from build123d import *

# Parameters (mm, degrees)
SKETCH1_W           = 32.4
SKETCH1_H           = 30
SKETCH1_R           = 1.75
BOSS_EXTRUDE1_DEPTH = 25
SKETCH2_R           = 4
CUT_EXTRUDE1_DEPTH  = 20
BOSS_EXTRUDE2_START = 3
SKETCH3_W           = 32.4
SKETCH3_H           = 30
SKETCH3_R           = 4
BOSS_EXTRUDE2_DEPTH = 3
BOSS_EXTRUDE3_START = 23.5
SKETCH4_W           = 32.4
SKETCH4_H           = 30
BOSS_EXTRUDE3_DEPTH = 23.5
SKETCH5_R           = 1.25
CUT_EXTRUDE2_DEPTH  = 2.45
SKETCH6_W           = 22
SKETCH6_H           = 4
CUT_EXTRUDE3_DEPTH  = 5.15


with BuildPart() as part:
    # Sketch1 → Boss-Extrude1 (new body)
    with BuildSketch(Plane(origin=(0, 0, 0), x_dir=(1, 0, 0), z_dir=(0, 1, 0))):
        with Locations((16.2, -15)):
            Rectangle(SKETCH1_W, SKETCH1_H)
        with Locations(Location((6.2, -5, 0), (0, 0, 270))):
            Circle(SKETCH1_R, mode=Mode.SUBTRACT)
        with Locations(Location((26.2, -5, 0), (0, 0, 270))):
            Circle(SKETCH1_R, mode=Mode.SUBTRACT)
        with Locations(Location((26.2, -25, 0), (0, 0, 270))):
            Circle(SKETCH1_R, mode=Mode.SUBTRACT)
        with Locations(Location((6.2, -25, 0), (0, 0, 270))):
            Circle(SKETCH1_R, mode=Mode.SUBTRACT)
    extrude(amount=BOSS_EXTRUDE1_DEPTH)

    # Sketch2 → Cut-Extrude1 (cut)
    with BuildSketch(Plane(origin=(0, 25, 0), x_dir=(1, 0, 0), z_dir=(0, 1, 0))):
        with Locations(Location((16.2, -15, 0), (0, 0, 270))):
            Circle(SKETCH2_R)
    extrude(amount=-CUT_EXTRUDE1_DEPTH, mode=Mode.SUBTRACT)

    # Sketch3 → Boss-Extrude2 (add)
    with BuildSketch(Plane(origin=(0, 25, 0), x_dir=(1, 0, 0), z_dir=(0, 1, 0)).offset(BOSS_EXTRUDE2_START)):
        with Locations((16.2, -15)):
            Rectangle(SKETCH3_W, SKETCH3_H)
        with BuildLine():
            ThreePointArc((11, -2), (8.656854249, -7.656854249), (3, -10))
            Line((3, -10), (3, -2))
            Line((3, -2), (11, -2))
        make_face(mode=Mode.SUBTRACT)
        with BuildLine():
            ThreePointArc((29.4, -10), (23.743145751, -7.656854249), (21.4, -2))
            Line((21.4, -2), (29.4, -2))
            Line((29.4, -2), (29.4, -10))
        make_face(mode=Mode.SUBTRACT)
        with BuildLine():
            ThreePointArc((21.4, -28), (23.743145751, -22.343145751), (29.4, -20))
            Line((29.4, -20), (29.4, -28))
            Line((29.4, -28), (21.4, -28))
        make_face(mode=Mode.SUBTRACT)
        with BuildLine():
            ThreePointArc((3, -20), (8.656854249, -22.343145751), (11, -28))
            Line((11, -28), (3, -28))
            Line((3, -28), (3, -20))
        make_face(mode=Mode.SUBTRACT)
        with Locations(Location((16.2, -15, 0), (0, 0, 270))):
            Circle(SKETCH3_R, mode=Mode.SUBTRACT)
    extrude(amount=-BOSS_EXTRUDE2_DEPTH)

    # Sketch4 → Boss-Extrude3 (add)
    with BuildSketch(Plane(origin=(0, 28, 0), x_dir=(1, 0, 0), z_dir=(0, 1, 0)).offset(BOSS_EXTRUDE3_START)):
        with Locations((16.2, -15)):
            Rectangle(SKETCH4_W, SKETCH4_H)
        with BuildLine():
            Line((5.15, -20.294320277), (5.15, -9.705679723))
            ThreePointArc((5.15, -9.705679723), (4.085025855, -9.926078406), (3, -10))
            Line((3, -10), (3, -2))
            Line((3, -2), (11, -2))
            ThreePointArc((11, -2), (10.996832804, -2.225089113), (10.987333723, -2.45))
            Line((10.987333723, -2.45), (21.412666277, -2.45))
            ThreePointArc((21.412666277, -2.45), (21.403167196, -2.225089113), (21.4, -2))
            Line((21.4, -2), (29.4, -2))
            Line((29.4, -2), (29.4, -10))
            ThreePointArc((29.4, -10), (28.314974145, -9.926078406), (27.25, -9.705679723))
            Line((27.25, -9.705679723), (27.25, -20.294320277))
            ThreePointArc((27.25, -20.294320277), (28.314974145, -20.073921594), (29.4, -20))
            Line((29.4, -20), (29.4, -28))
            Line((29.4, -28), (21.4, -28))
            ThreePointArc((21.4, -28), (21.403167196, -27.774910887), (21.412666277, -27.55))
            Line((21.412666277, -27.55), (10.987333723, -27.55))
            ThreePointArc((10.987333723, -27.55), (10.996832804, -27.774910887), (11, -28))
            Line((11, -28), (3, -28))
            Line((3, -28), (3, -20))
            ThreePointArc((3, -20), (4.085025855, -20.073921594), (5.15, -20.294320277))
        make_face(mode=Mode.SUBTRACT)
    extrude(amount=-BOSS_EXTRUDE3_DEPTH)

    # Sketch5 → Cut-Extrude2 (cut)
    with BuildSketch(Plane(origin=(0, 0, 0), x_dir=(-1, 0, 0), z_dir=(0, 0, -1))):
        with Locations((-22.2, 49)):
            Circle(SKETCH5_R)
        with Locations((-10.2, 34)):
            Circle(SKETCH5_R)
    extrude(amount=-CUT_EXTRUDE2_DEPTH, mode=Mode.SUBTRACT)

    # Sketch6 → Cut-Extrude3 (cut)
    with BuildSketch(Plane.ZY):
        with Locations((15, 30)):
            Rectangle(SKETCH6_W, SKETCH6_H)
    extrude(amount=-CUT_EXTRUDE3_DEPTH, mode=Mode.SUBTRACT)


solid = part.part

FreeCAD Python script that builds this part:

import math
import FreeCAD as App
import Part
import Sketcher

V = App.Vector
Q = App.Units.Quantity

doc = App.newDocument("Part")
params = doc.addObject("Spreadsheet::Sheet", "Params")
for row, (alias, value) in enumerate([
    ("sketch1_diameter", "3.5 mm"),
    ("sketch1_height", "30 mm"),
    ("sketch1_width", "32.4 mm"),
    ("pad1_length", "25 mm"),
    ("sketch2_diameter", "8 mm"),
    ("pocket1_length", "20 mm"),
    ("sketch3_diameter", "8 mm"),
    ("sketch3_radius", "8 mm"),
    ("sketch3_height", "30 mm"),
    ("sketch3_width", "32.4 mm"),
    ("pad2_length", "3 mm"),
    ("sketch4_radius", "8 mm"),
    ("sketch4_height", "30 mm"),
    ("sketch4_width", "32.4 mm"),
    ("pad3_length", "23.5 mm"),
    ("sketch5_diameter", "2.5 mm"),
    ("pocket2_length", "2.45 mm"),
    ("sketch6_width", "4 mm"),
    ("sketch6_height", "22 mm"),
    ("pocket3_length", "5.15 mm"),
], start=1):
    params.set(f"A{row}", alias)
    params.set(f"B{row}", "=" + value)
    params.setAlias(f"B{row}", alias)

body = doc.addObject("PartDesign::Body", "Body")

# Sketch on XZ plane
sketch1 = body.newObject("Sketcher::SketchObject", "Sketch")
sketch1.AttachmentSupport = (doc.getObject("XZ_Plane"), [""])
sketch1.MapMode = "FlatFace"
sketch1.addGeometry(Part.LineSegment(V(0, 0, 0), V(0, 30, 0)), False)
sketch1.addGeometry(Part.LineSegment(V(0, 30, 0), V(32.4, 30, 0)), False)
sketch1.addGeometry(Part.LineSegment(V(32.4, 30, 0), V(32.4, 0, 0)), False)
sketch1.addGeometry(Part.LineSegment(V(32.4, 0, 0), V(0, 0, 0)), False)
sketch1.addGeometry(Part.Circle(V(6.2, 25, 0), V(0, 0, 1), 1.8), False)
sketch1.addGeometry(Part.Circle(V(26.2, 25, 0), V(0, 0, 1), 1.8), False)
sketch1.addGeometry(Part.Circle(V(6.2, 5, 0), V(0, 0, 1), 1.8), False)
sketch1.addGeometry(Part.Circle(V(26.2, 5, 0), V(0, 0, 1), 1.8), False)
sketch1.addConstraint(Sketcher.Constraint("Coincident", 0, 2, 1, 1))
sketch1.addConstraint(Sketcher.Constraint("Coincident", 1, 2, 2, 1))
sketch1.addConstraint(Sketcher.Constraint("Coincident", 2, 2, 3, 1))
sketch1.addConstraint(Sketcher.Constraint("Coincident", 3, 2, 0, 1))
sketch1.addConstraint(Sketcher.Constraint("Vertical", 0))
sketch1.addConstraint(Sketcher.Constraint("Horizontal", 1))
sketch1.addConstraint(Sketcher.Constraint("Vertical", 2))
sketch1.addConstraint(Sketcher.Constraint("Horizontal", 3))
sketch1.addConstraint(Sketcher.Constraint("Coincident", 3, 2, -1, 1))
sketch1.addConstraint(Sketcher.Constraint("Equal", 4, 5))
sketch1.addConstraint(Sketcher.Constraint("Equal", 5, 6))
sketch1.addConstraint(Sketcher.Constraint("Equal", 6, 7))
sketch1.addConstraint(Sketcher.Constraint("Horizontal", 4, 3, 5, 3))
sketch1.addConstraint(Sketcher.Constraint("Horizontal", 6, 3, 7, 3))
sketch1.addConstraint(Sketcher.Constraint("Vertical", 4, 3, 6, 3))
sketch1.addConstraint(Sketcher.Constraint("Vertical", 5, 3, 7, 3))
sketch1.addConstraint(Sketcher.Constraint("Diameter", 4, Q("3.5 mm")))
sketch1.addConstraint(Sketcher.Constraint("DistanceY", 0, 1, 0, 2, Q("30 mm")))
sketch1.addConstraint(Sketcher.Constraint("DistanceX", 1, 1, 1, 2, Q("32.4 mm")))
sketch1.addConstraint(Sketcher.Constraint("DistanceY", -1, 1, 4, 3, Q("25 mm")))
sketch1.addConstraint(Sketcher.Constraint("DistanceY", -1, 1, 6, 3, Q("5 mm")))
sketch1.addConstraint(Sketcher.Constraint("DistanceX", 4, 3, 5, 3, Q("20 mm")))
sketch1.addConstraint(Sketcher.Constraint("DistanceX", -1, 1, 4, 3, Q("6.2 mm")))
sketch1.setExpression("Constraints[16]", "Params.sketch1_diameter")
sketch1.setExpression("Constraints[17]", "Params.sketch1_height")
sketch1.setExpression("Constraints[18]", "Params.sketch1_width")
pad1 = body.newObject("PartDesign::Pad", "Pad")
pad1.Profile = sketch1
pad1.setExpression("Length", "Params.pad1_length")
pad1.Reversed = True

# Sketch on XZ plane
sketch2 = body.newObject("Sketcher::SketchObject", "Sketch001")
sketch2.AttachmentSupport = (doc.getObject("XZ_Plane"), [""])
sketch2.MapMode = "FlatFace"
sketch2.AttachmentOffset = App.Placement(V(0, 0, -25), App.Rotation())
sketch2.addGeometry(Part.Circle(V(16.2, 15, 0), V(0, 0, 1), 4), False)
sketch2.addConstraint(Sketcher.Constraint("Diameter", 0, Q("8 mm")))
sketch2.addConstraint(Sketcher.Constraint("DistanceY", -1, 1, 0, 3, Q("15 mm")))
sketch2.addConstraint(Sketcher.Constraint("DistanceX", -1, 1, 0, 3, Q("16.2 mm")))
sketch2.setExpression("Constraints[0]", "Params.sketch2_diameter")
pocket1 = body.newObject("PartDesign::Pocket", "Pocket")
pocket1.Profile = sketch2
pocket1.setExpression("Length", "Params.pocket1_length")
pocket1.Reversed = True

# Sketch on XZ plane
sketch3 = body.newObject("Sketcher::SketchObject", "Sketch002")
sketch3.AttachmentSupport = (doc.getObject("XZ_Plane"), [""])
sketch3.MapMode = "FlatFace"
sketch3.AttachmentOffset = App.Placement(V(0, 0, -28), App.Rotation())
sketch3.addGeometry(Part.LineSegment(V(0, 0, 0), V(0, 30, 0)), False)
sketch3.addGeometry(Part.LineSegment(V(0, 30, 0), V(32.4, 30, 0)), False)
sketch3.addGeometry(Part.LineSegment(V(32.4, 30, 0), V(32.4, 0, 0)), False)
sketch3.addGeometry(Part.LineSegment(V(32.4, 0, 0), V(0, 0, 0)), False)
sketch3.addGeometry(Part.LineSegment(V(3, 28, 0), V(3, 20, 0)), False)
sketch3.addGeometry(Part.ArcOfCircle(Part.Circle(V(3, 28, 0), V(0, 0, 1), 8), math.radians(-90), math.radians(0)), False)
sketch3.addGeometry(Part.LineSegment(V(11, 28, 0), V(3, 28, 0)), False)
sketch3.addGeometry(Part.LineSegment(V(29.4, 28, 0), V(21.4, 28, 0)), False)
sketch3.addGeometry(Part.ArcOfCircle(Part.Circle(V(29.4, 28, 0), V(0, 0, 1), 8), math.radians(-180), math.radians(-90)), False)
sketch3.addGeometry(Part.LineSegment(V(29.4, 20, 0), V(29.4, 28, 0)), False)
sketch3.addGeometry(Part.LineSegment(V(3, 2, 0), V(11, 2, 0)), False)
sketch3.addGeometry(Part.ArcOfCircle(Part.Circle(V(3, 2, 0), V(0, 0, 1), 8), math.radians(0), math.radians(90)), False)
sketch3.addGeometry(Part.LineSegment(V(3, 10, 0), V(3, 2, 0)), False)
sketch3.addGeometry(Part.Circle(V(16.2, 15, 0), V(0, 0, 1), 4), False)
sketch3.addGeometry(Part.LineSegment(V(29.4, 2, 0), V(29.4, 10, 0)), False)
sketch3.addGeometry(Part.ArcOfCircle(Part.Circle(V(29.4, 2, 0), V(0, 0, 1), 8), math.radians(90), math.radians(180)), False)
sketch3.addGeometry(Part.LineSegment(V(21.4, 2, 0), V(29.4, 2, 0)), False)
sketch3.addConstraint(Sketcher.Constraint("Coincident", 0, 2, 1, 1))
sketch3.addConstraint(Sketcher.Constraint("Coincident", 1, 2, 2, 1))
sketch3.addConstraint(Sketcher.Constraint("Coincident", 2, 2, 3, 1))
sketch3.addConstraint(Sketcher.Constraint("Coincident", 3, 2, 0, 1))
sketch3.addConstraint(Sketcher.Constraint("Coincident", 4, 2, 5, 1))
sketch3.addConstraint(Sketcher.Constraint("Coincident", 5, 2, 6, 1))
sketch3.addConstraint(Sketcher.Constraint("Coincident", 6, 2, 4, 1))
sketch3.addConstraint(Sketcher.Constraint("Coincident", 7, 2, 8, 1))
sketch3.addConstraint(Sketcher.Constraint("Coincident", 8, 2, 9, 1))
sketch3.addConstraint(Sketcher.Constraint("Coincident", 9, 2, 7, 1))
sketch3.addConstraint(Sketcher.Constraint("Coincident", 10, 2, 11, 1))
sketch3.addConstraint(Sketcher.Constraint("Coincident", 11, 2, 12, 1))
sketch3.addConstraint(Sketcher.Constraint("Coincident", 12, 2, 10, 1))
sketch3.addConstraint(Sketcher.Constraint("Coincident", 14, 2, 15, 1))
sketch3.addConstraint(Sketcher.Constraint("Coincident", 15, 2, 16, 1))
sketch3.addConstraint(Sketcher.Constraint("Coincident", 16, 2, 14, 1))
sketch3.addConstraint(Sketcher.Constraint("Vertical", 0))
sketch3.addConstraint(Sketcher.Constraint("Horizontal", 1))
sketch3.addConstraint(Sketcher.Constraint("Vertical", 2))
sketch3.addConstraint(Sketcher.Constraint("Horizontal", 3))
sketch3.addConstraint(Sketcher.Constraint("Vertical", 4))
sketch3.addConstraint(Sketcher.Constraint("Horizontal", 6))
sketch3.addConstraint(Sketcher.Constraint("Horizontal", 7))
sketch3.addConstraint(Sketcher.Constraint("Vertical", 9))
sketch3.addConstraint(Sketcher.Constraint("Horizontal", 10))
sketch3.addConstraint(Sketcher.Constraint("Vertical", 12))
sketch3.addConstraint(Sketcher.Constraint("Vertical", 14))
sketch3.addConstraint(Sketcher.Constraint("Horizontal", 16))
sketch3.addConstraint(Sketcher.Constraint("Coincident", 3, 2, -1, 1))
sketch3.addConstraint(Sketcher.Constraint("Coincident", 6, 2, 5, 3))
sketch3.addConstraint(Sketcher.Constraint("Coincident", 9, 2, 8, 3))
sketch3.addConstraint(Sketcher.Constraint("Coincident", 12, 2, 11, 3))
sketch3.addConstraint(Sketcher.Constraint("Coincident", 16, 2, 15, 3))
sketch3.addConstraint(Sketcher.Constraint("Equal", 5, 8))
sketch3.addConstraint(Sketcher.Constraint("Equal", 8, 11))
sketch3.addConstraint(Sketcher.Constraint("Equal", 11, 15))
sketch3.addConstraint(Sketcher.Constraint("Horizontal", 5, 3, 8, 3))
sketch3.addConstraint(Sketcher.Constraint("Horizontal", 11, 3, 15, 3))
sketch3.addConstraint(Sketcher.Constraint("Vertical", 5, 3, 11, 3))
sketch3.addConstraint(Sketcher.Constraint("Vertical", 8, 3, 15, 3))
sketch3.addConstraint(Sketcher.Constraint("Diameter", 13, Q("8 mm")))
sketch3.addConstraint(Sketcher.Constraint("Radius", 5, Q("8 mm")))
sketch3.addConstraint(Sketcher.Constraint("DistanceY", 0, 1, 0, 2, Q("30 mm")))
sketch3.addConstraint(Sketcher.Constraint("DistanceX", 1, 1, 1, 2, Q("32.4 mm")))
sketch3.addConstraint(Sketcher.Constraint("DistanceX", -1, 1, 5, 3, Q("3 mm")))
sketch3.addConstraint(Sketcher.Constraint("DistanceY", -1, 1, 5, 3, Q("28 mm")))
sketch3.addConstraint(Sketcher.Constraint("DistanceY", -1, 1, 11, 3, Q("2 mm")))
sketch3.addConstraint(Sketcher.Constraint("DistanceY", -1, 1, 13, 3, Q("15 mm")))
sketch3.addConstraint(Sketcher.Constraint("DistanceX", 8, 3, 1, 2, Q("3 mm")))
sketch3.addConstraint(Sketcher.Constraint("DistanceX", -1, 1, 13, 3, Q("16.2 mm")))
sketch3.setExpression("Constraints[40]", "Params.sketch3_diameter")
sketch3.setExpression("Constraints[41]", "Params.sketch3_radius")
sketch3.setExpression("Constraints[42]", "Params.sketch3_height")
sketch3.setExpression("Constraints[43]", "Params.sketch3_width")
pad2 = body.newObject("PartDesign::Pad", "Pad001")
pad2.Profile = sketch3
pad2.setExpression("Length", "Params.pad2_length")

# Sketch on XZ plane
sketch4 = body.newObject("Sketcher::SketchObject", "Sketch003")
sketch4.AttachmentSupport = (doc.getObject("XZ_Plane"), [""])
sketch4.MapMode = "FlatFace"
sketch4.AttachmentOffset = App.Placement(V(0, 0, -51.5), App.Rotation())
sketch4.addGeometry(Part.LineSegment(V(0, 0, 0), V(0, 30, 0)), False)
sketch4.addGeometry(Part.LineSegment(V(0, 30, 0), V(32.4, 30, 0)), False)
sketch4.addGeometry(Part.LineSegment(V(32.4, 30, 0), V(32.4, 0, 0)), False)
sketch4.addGeometry(Part.LineSegment(V(32.4, 0, 0), V(0, 0, 0)), False)
sketch4.addGeometry(Part.ArcOfCircle(Part.Circle(V(3, 28, 0), V(0, 0, 1), 8), math.radians(-90), math.radians(-74.41)), False)
sketch4.addGeometry(Part.LineSegment(V(5.15, 20.29, 0), V(5.15, 9.71, 0)), False)
sketch4.addGeometry(Part.ArcOfCircle(Part.Circle(V(3, 2, 0), V(0, 0, 1), 8), math.radians(74.41), math.radians(90)), False)
sketch4.addGeometry(Part.LineSegment(V(3, 10, 0), V(3, 2, 0)), False)
sketch4.addGeometry(Part.LineSegment(V(3, 2, 0), V(11, 2, 0)), False)
sketch4.addGeometry(Part.ArcOfCircle(Part.Circle(V(3, 2, 0), V(0, 0, 1), 8), math.radians(0), math.radians(3.22)), False)
sketch4.addGeometry(Part.LineSegment(V(10.99, 2.45, 0), V(21.41, 2.45, 0)), False)
sketch4.addGeometry(Part.ArcOfCircle(Part.Circle(V(29.4, 2, 0), V(0, 0, 1), 8), math.radians(176.78), math.radians(180)), False)
sketch4.addGeometry(Part.LineSegment(V(21.4, 2, 0), V(29.4, 2, 0)), False)
sketch4.addGeometry(Part.LineSegment(V(29.4, 2, 0), V(29.4, 10, 0)), False)
sketch4.addGeometry(Part.ArcOfCircle(Part.Circle(V(29.4, 2, 0), V(0, 0, 1), 8), math.radians(90), math.radians(105.59)), False)
sketch4.addGeometry(Part.LineSegment(V(27.25, 9.71, 0), V(27.25, 20.29, 0)), False)
sketch4.addGeometry(Part.ArcOfCircle(Part.Circle(V(29.4, 28, 0), V(0, 0, 1), 8), math.radians(-105.59), math.radians(-90)), False)
sketch4.addGeometry(Part.LineSegment(V(29.4, 20, 0), V(29.4, 28, 0)), False)
sketch4.addGeometry(Part.LineSegment(V(29.4, 28, 0), V(21.4, 28, 0)), False)
sketch4.addGeometry(Part.ArcOfCircle(Part.Circle(V(29.4, 28, 0), V(0, 0, 1), 8), math.radians(180), math.radians(183.22)), False)
sketch4.addGeometry(Part.LineSegment(V(21.41, 27.55, 0), V(10.99, 27.55, 0)), False)
sketch4.addGeometry(Part.ArcOfCircle(Part.Circle(V(3, 28, 0), V(0, 0, 1), 8), math.radians(-3.22), math.radians(0)), False)
sketch4.addGeometry(Part.LineSegment(V(11, 28, 0), V(3, 28, 0)), False)
sketch4.addGeometry(Part.LineSegment(V(3, 28, 0), V(3, 20, 0)), False)
sketch4.addConstraint(Sketcher.Constraint("Coincident", 0, 2, 1, 1))
sketch4.addConstraint(Sketcher.Constraint("Coincident", 1, 2, 2, 1))
sketch4.addConstraint(Sketcher.Constraint("Coincident", 2, 2, 3, 1))
sketch4.addConstraint(Sketcher.Constraint("Coincident", 3, 2, 0, 1))
sketch4.addConstraint(Sketcher.Constraint("Coincident", 4, 2, 5, 1))
sketch4.addConstraint(Sketcher.Constraint("Coincident", 5, 2, 6, 1))
sketch4.addConstraint(Sketcher.Constraint("Coincident", 6, 2, 7, 1))
sketch4.addConstraint(Sketcher.Constraint("Coincident", 7, 2, 8, 1))
sketch4.addConstraint(Sketcher.Constraint("Coincident", 8, 2, 9, 1))
sketch4.addConstraint(Sketcher.Constraint("Coincident", 9, 2, 10, 1))
sketch4.addConstraint(Sketcher.Constraint("Coincident", 10, 2, 11, 1))
sketch4.addConstraint(Sketcher.Constraint("Coincident", 11, 2, 12, 1))
sketch4.addConstraint(Sketcher.Constraint("Coincident", 12, 2, 13, 1))
sketch4.addConstraint(Sketcher.Constraint("Coincident", 13, 2, 14, 1))
sketch4.addConstraint(Sketcher.Constraint("Coincident", 14, 2, 15, 1))
sketch4.addConstraint(Sketcher.Constraint("Coincident", 15, 2, 16, 1))
sketch4.addConstraint(Sketcher.Constraint("Coincident", 16, 2, 17, 1))
sketch4.addConstraint(Sketcher.Constraint("Coincident", 17, 2, 18, 1))
sketch4.addConstraint(Sketcher.Constraint("Coincident", 18, 2, 19, 1))
sketch4.addConstraint(Sketcher.Constraint("Coincident", 19, 2, 20, 1))
sketch4.addConstraint(Sketcher.Constraint("Coincident", 20, 2, 21, 1))
sketch4.addConstraint(Sketcher.Constraint("Coincident", 21, 2, 22, 1))
sketch4.addConstraint(Sketcher.Constraint("Coincident", 22, 2, 23, 1))
sketch4.addConstraint(Sketcher.Constraint("Coincident", 23, 2, 4, 1))
sketch4.addConstraint(Sketcher.Constraint("Vertical", 0))
sketch4.addConstraint(Sketcher.Constraint("Horizontal", 1))
sketch4.addConstraint(Sketcher.Constraint("Vertical", 2))
sketch4.addConstraint(Sketcher.Constraint("Horizontal", 3))
sketch4.addConstraint(Sketcher.Constraint("Vertical", 5))
sketch4.addConstraint(Sketcher.Constraint("Vertical", 7))
sketch4.addConstraint(Sketcher.Constraint("Horizontal", 8))
sketch4.addConstraint(Sketcher.Constraint("Horizontal", 10))
sketch4.addConstraint(Sketcher.Constraint("Horizontal", 12))
sketch4.addConstraint(Sketcher.Constraint("Vertical", 13))
sketch4.addConstraint(Sketcher.Constraint("Vertical", 15))
sketch4.addConstraint(Sketcher.Constraint("Vertical", 17))
sketch4.addConstraint(Sketcher.Constraint("Horizontal", 18))
sketch4.addConstraint(Sketcher.Constraint("Horizontal", 20))
sketch4.addConstraint(Sketcher.Constraint("Horizontal", 22))
sketch4.addConstraint(Sketcher.Constraint("Vertical", 23))
sketch4.addConstraint(Sketcher.Constraint("Coincident", 3, 2, -1, 1))
sketch4.addConstraint(Sketcher.Constraint("Coincident", 9, 3, 6, 3))
sketch4.addConstraint(Sketcher.Constraint("Coincident", 14, 3, 11, 3))
sketch4.addConstraint(Sketcher.Constraint("Coincident", 19, 3, 16, 3))
sketch4.addConstraint(Sketcher.Constraint("Coincident", 21, 3, 4, 3))
sketch4.addConstraint(Sketcher.Constraint("Coincident", 7, 2, 6, 3))
sketch4.addConstraint(Sketcher.Constraint("Coincident", 12, 2, 11, 3))
sketch4.addConstraint(Sketcher.Constraint("Coincident", 17, 2, 16, 3))
sketch4.addConstraint(Sketcher.Constraint("Coincident", 22, 2, 4, 3))
sketch4.addConstraint(Sketcher.Constraint("Equal", 4, 6))
sketch4.addConstraint(Sketcher.Constraint("Equal", 6, 9))
sketch4.addConstraint(Sketcher.Constraint("Equal", 9, 11))
sketch4.addConstraint(Sketcher.Constraint("Equal", 11, 14))
sketch4.addConstraint(Sketcher.Constraint("Equal", 14, 16))
sketch4.addConstraint(Sketcher.Constraint("Equal", 16, 19))
sketch4.addConstraint(Sketcher.Constraint("Equal", 19, 21))
sketch4.addConstraint(Sketcher.Constraint("Horizontal", 9, 3, 11, 3))
sketch4.addConstraint(Sketcher.Constraint("Horizontal", 4, 3, 16, 3))
sketch4.addConstraint(Sketcher.Constraint("Horizontal", 5, 2, 14, 2))
sketch4.addConstraint(Sketcher.Constraint("Horizontal", 4, 2, 15, 2))
sketch4.addConstraint(Sketcher.Constraint("Vertical", 4, 3, 6, 3))
sketch4.addConstraint(Sketcher.Constraint("Vertical", 10, 2, 19, 2))
sketch4.addConstraint(Sketcher.Constraint("Radius", 4, Q("8 mm")))
sketch4.addConstraint(Sketcher.Constraint("DistanceY", 0, 1, 0, 2, Q("30 mm")))
sketch4.addConstraint(Sketcher.Constraint("DistanceX", 1, 1, 1, 2, Q("32.4 mm")))
sketch4.addConstraint(Sketcher.Constraint("DistanceX", -1, 1, 4, 3, Q("3 mm")))
sketch4.addConstraint(Sketcher.Constraint("DistanceY", -1, 1, 4, 3, Q("28 mm")))
sketch4.addConstraint(Sketcher.Constraint("DistanceY", -1, 1, 6, 3, Q("2 mm")))
sketch4.addConstraint(Sketcher.Constraint("DistanceX", 16, 3, 1, 2, Q("3 mm")))
sketch4.addConstraint(Sketcher.Constraint("DistanceX", -1, 1, 4, 2, Q("5.15 mm")))
sketch4.addConstraint(Sketcher.Constraint("DistanceY", -1, 1, 9, 2, Q("2.45 mm")))
sketch4.setExpression("Constraints[62]", "Params.sketch4_radius")
sketch4.setExpression("Constraints[63]", "Params.sketch4_height")
sketch4.setExpression("Constraints[64]", "Params.sketch4_width")
pad3 = body.newObject("PartDesign::Pad", "Pad002")
pad3.Profile = sketch4
pad3.setExpression("Length", "Params.pad3_length")

# Sketch on XY plane
sketch5 = body.newObject("Sketcher::SketchObject", "Sketch004")
sketch5.AttachmentSupport = (doc.getObject("XY_Plane"), [""])
sketch5.MapMode = "FlatFace"
sketch5.addGeometry(Part.Circle(V(22.2, 49, 0), V(0, 0, 1), 1.2), False)
sketch5.addGeometry(Part.Circle(V(10.2, 34, 0), V(0, 0, 1), 1.2), False)
sketch5.addConstraint(Sketcher.Constraint("Equal", 0, 1))
sketch5.addConstraint(Sketcher.Constraint("Diameter", 0, Q("2.5 mm")))
sketch5.addConstraint(Sketcher.Constraint("DistanceY", -1, 1, 0, 3, Q("49 mm")))
sketch5.addConstraint(Sketcher.Constraint("DistanceY", -1, 1, 1, 3, Q("34 mm")))
sketch5.addConstraint(Sketcher.Constraint("DistanceX", 1, 3, 0, 3, Q("12 mm")))
sketch5.addConstraint(Sketcher.Constraint("DistanceX", -1, 1, 0, 3, Q("22.2 mm")))
sketch5.setExpression("Constraints[1]", "Params.sketch5_diameter")
pocket2 = body.newObject("PartDesign::Pocket", "Pocket001")
pocket2.Profile = sketch5
pocket2.setExpression("Length", "Params.pocket2_length")
pocket2.Reversed = True

# Sketch on YZ plane
sketch6 = body.newObject("Sketcher::SketchObject", "Sketch005")
sketch6.AttachmentSupport = (doc.getObject("YZ_Plane"), [""])
sketch6.MapMode = "FlatFace"
sketch6.addGeometry(Part.LineSegment(V(32, 4, 0), V(28, 4, 0)), False)
sketch6.addGeometry(Part.LineSegment(V(28, 4, 0), V(28, 26, 0)), False)
sketch6.addGeometry(Part.LineSegment(V(28, 26, 0), V(32, 26, 0)), False)
sketch6.addGeometry(Part.LineSegment(V(32, 26, 0), V(32, 4, 0)), False)
sketch6.addConstraint(Sketcher.Constraint("Coincident", 0, 2, 1, 1))
sketch6.addConstraint(Sketcher.Constraint("Coincident", 1, 2, 2, 1))
sketch6.addConstraint(Sketcher.Constraint("Coincident", 2, 2, 3, 1))
sketch6.addConstraint(Sketcher.Constraint("Coincident", 3, 2, 0, 1))
sketch6.addConstraint(Sketcher.Constraint("Horizontal", 0))
sketch6.addConstraint(Sketcher.Constraint("Vertical", 1))
sketch6.addConstraint(Sketcher.Constraint("Horizontal", 2))
sketch6.addConstraint(Sketcher.Constraint("Vertical", 3))
sketch6.addConstraint(Sketcher.Constraint("DistanceX", 0, 2, 0, 1, Q("4 mm")))
sketch6.addConstraint(Sketcher.Constraint("DistanceY", 1, 1, 1, 2, Q("22 mm")))
sketch6.addConstraint(Sketcher.Constraint("DistanceX", -1, 1, 0, 2, Q("28 mm")))
sketch6.addConstraint(Sketcher.Constraint("DistanceY", -1, 1, 0, 2, Q("4 mm")))
sketch6.setExpression("Constraints[8]", "Params.sketch6_width")
sketch6.setExpression("Constraints[9]", "Params.sketch6_height")
pocket3 = body.newObject("PartDesign::Pocket", "Pocket002")
pocket3.Profile = sketch6
pocket3.setExpression("Length", "Params.pocket3_length")
pocket3.Reversed = True

doc.recompute()
